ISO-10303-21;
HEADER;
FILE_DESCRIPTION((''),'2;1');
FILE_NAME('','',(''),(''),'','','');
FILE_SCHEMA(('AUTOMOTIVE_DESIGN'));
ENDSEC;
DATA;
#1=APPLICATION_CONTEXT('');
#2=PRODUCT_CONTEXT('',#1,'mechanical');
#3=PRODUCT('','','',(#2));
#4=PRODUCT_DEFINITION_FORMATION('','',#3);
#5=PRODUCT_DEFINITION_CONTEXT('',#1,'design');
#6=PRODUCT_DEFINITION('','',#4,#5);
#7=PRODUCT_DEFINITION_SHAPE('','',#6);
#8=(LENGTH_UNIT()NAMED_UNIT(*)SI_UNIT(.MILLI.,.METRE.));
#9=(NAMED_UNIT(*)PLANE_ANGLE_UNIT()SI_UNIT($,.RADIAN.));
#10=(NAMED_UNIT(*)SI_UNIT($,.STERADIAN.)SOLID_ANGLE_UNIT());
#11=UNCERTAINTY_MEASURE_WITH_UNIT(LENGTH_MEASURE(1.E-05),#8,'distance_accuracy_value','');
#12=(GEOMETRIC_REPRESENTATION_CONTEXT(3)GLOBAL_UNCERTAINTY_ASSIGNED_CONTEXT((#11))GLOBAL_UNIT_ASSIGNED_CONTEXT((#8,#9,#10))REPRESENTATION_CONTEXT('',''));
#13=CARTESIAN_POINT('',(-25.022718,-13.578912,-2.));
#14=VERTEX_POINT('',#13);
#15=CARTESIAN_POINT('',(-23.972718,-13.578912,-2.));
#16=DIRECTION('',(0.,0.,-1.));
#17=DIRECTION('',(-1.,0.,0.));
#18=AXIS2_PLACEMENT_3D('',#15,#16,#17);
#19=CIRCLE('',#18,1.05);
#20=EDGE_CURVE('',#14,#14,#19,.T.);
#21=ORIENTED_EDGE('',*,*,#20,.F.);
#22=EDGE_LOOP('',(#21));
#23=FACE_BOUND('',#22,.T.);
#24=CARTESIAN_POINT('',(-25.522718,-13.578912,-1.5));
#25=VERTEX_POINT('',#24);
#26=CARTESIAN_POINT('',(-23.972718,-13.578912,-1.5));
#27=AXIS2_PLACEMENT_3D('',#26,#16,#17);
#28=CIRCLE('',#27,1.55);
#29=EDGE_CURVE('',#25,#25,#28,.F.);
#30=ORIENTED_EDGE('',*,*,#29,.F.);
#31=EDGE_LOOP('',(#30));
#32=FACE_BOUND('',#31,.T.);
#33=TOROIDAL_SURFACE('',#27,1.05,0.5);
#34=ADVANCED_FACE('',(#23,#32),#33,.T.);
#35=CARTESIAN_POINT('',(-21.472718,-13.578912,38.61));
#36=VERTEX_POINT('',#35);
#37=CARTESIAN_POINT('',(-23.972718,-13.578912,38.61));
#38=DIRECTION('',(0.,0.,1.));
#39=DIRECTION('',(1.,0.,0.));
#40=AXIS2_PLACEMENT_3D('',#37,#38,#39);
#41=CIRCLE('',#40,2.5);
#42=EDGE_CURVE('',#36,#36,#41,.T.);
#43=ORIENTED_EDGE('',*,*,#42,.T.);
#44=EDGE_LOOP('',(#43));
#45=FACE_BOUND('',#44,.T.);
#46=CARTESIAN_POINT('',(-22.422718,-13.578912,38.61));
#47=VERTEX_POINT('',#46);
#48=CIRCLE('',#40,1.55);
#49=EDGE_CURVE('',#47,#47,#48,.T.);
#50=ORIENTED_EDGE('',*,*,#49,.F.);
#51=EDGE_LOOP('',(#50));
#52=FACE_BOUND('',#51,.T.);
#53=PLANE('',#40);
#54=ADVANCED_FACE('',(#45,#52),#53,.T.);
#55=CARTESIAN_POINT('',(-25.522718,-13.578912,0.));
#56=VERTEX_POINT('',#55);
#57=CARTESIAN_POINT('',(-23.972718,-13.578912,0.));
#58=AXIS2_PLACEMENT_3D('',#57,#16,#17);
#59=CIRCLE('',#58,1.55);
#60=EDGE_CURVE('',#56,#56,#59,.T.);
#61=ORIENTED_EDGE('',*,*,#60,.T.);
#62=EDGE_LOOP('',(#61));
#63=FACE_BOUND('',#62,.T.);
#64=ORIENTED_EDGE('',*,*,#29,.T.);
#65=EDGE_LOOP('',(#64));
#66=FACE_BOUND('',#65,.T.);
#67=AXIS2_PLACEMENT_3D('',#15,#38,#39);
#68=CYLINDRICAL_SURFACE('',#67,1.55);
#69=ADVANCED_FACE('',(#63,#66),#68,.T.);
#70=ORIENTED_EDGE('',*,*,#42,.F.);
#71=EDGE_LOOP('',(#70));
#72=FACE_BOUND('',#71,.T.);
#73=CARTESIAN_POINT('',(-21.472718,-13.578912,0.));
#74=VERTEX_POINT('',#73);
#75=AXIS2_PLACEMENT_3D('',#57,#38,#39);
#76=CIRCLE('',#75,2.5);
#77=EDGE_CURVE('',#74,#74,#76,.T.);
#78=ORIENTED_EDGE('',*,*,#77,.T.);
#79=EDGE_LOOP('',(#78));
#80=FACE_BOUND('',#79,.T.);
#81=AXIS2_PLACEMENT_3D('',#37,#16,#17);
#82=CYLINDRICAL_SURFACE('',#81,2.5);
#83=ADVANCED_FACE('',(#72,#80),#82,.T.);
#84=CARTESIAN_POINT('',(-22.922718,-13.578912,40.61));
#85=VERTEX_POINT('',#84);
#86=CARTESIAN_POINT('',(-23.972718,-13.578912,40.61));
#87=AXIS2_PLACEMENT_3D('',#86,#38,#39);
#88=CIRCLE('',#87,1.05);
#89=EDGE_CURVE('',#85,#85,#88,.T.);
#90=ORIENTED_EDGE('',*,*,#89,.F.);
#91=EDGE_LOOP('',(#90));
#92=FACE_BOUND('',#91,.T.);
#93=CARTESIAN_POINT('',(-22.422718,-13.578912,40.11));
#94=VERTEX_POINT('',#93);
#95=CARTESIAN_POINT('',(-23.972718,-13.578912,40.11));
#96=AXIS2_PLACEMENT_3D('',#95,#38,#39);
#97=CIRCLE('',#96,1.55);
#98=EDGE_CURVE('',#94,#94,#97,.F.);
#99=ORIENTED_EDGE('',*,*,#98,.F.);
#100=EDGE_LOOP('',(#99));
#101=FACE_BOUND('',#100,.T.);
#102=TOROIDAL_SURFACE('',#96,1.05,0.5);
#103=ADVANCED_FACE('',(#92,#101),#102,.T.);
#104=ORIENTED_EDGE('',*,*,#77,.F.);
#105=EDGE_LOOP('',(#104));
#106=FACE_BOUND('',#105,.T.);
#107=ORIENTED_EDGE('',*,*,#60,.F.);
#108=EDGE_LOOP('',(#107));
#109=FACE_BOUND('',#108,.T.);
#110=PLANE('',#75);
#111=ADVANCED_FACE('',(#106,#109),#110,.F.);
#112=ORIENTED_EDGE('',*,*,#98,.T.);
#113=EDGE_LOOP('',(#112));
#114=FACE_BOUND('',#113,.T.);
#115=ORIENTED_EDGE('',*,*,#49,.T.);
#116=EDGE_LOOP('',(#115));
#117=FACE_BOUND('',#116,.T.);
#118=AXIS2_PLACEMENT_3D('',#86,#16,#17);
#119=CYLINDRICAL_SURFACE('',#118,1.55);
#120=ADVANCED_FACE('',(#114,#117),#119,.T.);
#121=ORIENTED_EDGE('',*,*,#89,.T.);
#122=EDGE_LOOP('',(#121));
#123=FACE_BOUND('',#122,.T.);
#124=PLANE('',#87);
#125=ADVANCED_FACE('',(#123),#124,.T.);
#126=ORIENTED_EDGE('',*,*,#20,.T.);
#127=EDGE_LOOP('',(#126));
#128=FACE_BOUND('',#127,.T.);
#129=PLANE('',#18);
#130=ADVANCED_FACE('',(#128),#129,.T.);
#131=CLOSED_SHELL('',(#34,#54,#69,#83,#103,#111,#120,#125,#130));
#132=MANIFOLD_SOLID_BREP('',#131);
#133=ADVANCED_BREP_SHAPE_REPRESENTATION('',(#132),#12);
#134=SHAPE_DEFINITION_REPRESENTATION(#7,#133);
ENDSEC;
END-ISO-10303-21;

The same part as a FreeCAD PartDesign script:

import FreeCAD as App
import Part
import Sketcher
from FreeCAD import Vector
Q = App.Units.Quantity


def edges_at(feature, points):
    """Names of the edges that pass closest to the given points."""
    edges = feature.Shape.Edges
    near = lambda p: min(range(len(edges)), key=lambda i: edges[i].distToShape(Part.Vertex(*p))[0])
    return sorted({f"Edge{near(p) + 1}" for p in points})

doc = App.newDocument("Part")
params = doc.addObject("Spreadsheet::Sheet", "Params")
for row, (alias, value) in enumerate([
    ("sketch1_diameter", "5 mm"),
    ("pad1_length", "38.61 mm"),
    ("sketch2_diameter", "3.1 mm"),
    ("pad2_length", "2 mm"),
    ("fillet_radius", "0.5 mm"),
    ("sketch3_diameter", "3.1 mm"),
    ("pad3_length", "2 mm"),
    ("fillet2_radius", "0.5 mm"),
], start=1):
    params.set(f"A{row}", alias)
    params.set(f"B{row}", "=" + value)
    params.setAlias(f"B{row}", alias)

body = doc.addObject("PartDesign::Body", "Body")

# Sketch on XY plane
sketch1 = body.newObject("Sketcher::SketchObject", "Sketch")
sketch1.AttachmentSupport = (doc.getObject("XY_Plane"), [""])
sketch1.MapMode = "FlatFace"
sketch1.addGeometry(Part.Circle(Vector(-24, -13.6, 0), Vector(0, 0, 1), 2.5), False)
sketch1.addConstraint([
    Sketcher.Constraint("Diameter", 0, Q("5 mm")),
    Sketcher.Constraint("DistanceY", 0, 3, -1, 1, Q("13.578912 mm")),
    Sketcher.Constraint("DistanceX", 0, 3, -1, 1, Q("23.972718 mm")),
])
sketch1.setExpression("Constraints[0]", "Params.sketch1_diameter")
pad1 = body.newObject("PartDesign::Pad", "Pad")
pad1.Profile = sketch1
pad1.setExpression("Length", "Params.pad1_length")

# Sketch on XY plane
sketch2 = body.newObject("Sketcher::SketchObject", "Sketch001")
sketch2.AttachmentSupport = (doc.getObject("XY_Plane"), [""])
sketch2.MapMode = "FlatFace"
sketch2.AttachmentOffset = App.Placement(Vector(0, 0, 38.61), App.Rotation())
sketch2.addGeometry(Part.Circle(Vector(-24, -13.6, 0), Vector(0, 0, 1), 1.6), False)
sketch2.addConstraint([
    Sketcher.Constraint("Diameter", 0, Q("3.1 mm")),
    Sketcher.Constraint("DistanceY", 0, 3, -1, 1, Q("13.578912 mm")),
    Sketcher.Constraint("DistanceX", 0, 3, -1, 1, Q("23.972718 mm")),
])
sketch2.setExpression("Constraints[0]", "Params.sketch2_diameter")
pad2 = body.newObject("PartDesign::Pad", "Pad001")
pad2.Profile = sketch2
pad2.setExpression("Length", "Params.pad2_length")
doc.recompute()

fillet = body.newObject("PartDesign::Fillet", "Fillet")
fillet.Base = (pad2, edges_at(pad2, [(-25.523, -13.579, 40.61)]))
fillet.setExpression("Radius", "Params.fillet_radius")

# Sketch on XY plane
sketch3 = body.newObject("Sketcher::SketchObject", "Sketch002")
sketch3.AttachmentSupport = (doc.getObject("XY_Plane"), [""])
sketch3.MapMode = "FlatFace"
sketch3.AttachmentOffset = App.Placement(Vector(0, 0, -2), App.Rotation())
sketch3.addGeometry(Part.Circle(Vector(-24, -13.6, 0), Vector(0, 0, 1), 1.6), False)
sketch3.addConstraint([
    Sketcher.Constraint("Diameter", 0, Q("3.1 mm")),
    Sketcher.Constraint("DistanceY", 0, 3, -1, 1, Q("13.578912 mm")),
    Sketcher.Constraint("DistanceX", 0, 3, -1, 1, Q("23.972718 mm")),
])
sketch3.setExpression("Constraints[0]", "Params.sketch3_diameter")
pad3 = body.newObject("PartDesign::Pad", "Pad002")
pad3.Profile = sketch3
pad3.setExpression("Length", "Params.pad3_length")
doc.recompute()

fillet2 = body.newObject("PartDesign::Fillet", "Fillet001")
fillet2.Base = (pad3, edges_at(pad3, [(-25.523, -13.579, -2)]))
fillet2.setExpression("Radius", "Params.fillet2_radius")

doc.recompute()
